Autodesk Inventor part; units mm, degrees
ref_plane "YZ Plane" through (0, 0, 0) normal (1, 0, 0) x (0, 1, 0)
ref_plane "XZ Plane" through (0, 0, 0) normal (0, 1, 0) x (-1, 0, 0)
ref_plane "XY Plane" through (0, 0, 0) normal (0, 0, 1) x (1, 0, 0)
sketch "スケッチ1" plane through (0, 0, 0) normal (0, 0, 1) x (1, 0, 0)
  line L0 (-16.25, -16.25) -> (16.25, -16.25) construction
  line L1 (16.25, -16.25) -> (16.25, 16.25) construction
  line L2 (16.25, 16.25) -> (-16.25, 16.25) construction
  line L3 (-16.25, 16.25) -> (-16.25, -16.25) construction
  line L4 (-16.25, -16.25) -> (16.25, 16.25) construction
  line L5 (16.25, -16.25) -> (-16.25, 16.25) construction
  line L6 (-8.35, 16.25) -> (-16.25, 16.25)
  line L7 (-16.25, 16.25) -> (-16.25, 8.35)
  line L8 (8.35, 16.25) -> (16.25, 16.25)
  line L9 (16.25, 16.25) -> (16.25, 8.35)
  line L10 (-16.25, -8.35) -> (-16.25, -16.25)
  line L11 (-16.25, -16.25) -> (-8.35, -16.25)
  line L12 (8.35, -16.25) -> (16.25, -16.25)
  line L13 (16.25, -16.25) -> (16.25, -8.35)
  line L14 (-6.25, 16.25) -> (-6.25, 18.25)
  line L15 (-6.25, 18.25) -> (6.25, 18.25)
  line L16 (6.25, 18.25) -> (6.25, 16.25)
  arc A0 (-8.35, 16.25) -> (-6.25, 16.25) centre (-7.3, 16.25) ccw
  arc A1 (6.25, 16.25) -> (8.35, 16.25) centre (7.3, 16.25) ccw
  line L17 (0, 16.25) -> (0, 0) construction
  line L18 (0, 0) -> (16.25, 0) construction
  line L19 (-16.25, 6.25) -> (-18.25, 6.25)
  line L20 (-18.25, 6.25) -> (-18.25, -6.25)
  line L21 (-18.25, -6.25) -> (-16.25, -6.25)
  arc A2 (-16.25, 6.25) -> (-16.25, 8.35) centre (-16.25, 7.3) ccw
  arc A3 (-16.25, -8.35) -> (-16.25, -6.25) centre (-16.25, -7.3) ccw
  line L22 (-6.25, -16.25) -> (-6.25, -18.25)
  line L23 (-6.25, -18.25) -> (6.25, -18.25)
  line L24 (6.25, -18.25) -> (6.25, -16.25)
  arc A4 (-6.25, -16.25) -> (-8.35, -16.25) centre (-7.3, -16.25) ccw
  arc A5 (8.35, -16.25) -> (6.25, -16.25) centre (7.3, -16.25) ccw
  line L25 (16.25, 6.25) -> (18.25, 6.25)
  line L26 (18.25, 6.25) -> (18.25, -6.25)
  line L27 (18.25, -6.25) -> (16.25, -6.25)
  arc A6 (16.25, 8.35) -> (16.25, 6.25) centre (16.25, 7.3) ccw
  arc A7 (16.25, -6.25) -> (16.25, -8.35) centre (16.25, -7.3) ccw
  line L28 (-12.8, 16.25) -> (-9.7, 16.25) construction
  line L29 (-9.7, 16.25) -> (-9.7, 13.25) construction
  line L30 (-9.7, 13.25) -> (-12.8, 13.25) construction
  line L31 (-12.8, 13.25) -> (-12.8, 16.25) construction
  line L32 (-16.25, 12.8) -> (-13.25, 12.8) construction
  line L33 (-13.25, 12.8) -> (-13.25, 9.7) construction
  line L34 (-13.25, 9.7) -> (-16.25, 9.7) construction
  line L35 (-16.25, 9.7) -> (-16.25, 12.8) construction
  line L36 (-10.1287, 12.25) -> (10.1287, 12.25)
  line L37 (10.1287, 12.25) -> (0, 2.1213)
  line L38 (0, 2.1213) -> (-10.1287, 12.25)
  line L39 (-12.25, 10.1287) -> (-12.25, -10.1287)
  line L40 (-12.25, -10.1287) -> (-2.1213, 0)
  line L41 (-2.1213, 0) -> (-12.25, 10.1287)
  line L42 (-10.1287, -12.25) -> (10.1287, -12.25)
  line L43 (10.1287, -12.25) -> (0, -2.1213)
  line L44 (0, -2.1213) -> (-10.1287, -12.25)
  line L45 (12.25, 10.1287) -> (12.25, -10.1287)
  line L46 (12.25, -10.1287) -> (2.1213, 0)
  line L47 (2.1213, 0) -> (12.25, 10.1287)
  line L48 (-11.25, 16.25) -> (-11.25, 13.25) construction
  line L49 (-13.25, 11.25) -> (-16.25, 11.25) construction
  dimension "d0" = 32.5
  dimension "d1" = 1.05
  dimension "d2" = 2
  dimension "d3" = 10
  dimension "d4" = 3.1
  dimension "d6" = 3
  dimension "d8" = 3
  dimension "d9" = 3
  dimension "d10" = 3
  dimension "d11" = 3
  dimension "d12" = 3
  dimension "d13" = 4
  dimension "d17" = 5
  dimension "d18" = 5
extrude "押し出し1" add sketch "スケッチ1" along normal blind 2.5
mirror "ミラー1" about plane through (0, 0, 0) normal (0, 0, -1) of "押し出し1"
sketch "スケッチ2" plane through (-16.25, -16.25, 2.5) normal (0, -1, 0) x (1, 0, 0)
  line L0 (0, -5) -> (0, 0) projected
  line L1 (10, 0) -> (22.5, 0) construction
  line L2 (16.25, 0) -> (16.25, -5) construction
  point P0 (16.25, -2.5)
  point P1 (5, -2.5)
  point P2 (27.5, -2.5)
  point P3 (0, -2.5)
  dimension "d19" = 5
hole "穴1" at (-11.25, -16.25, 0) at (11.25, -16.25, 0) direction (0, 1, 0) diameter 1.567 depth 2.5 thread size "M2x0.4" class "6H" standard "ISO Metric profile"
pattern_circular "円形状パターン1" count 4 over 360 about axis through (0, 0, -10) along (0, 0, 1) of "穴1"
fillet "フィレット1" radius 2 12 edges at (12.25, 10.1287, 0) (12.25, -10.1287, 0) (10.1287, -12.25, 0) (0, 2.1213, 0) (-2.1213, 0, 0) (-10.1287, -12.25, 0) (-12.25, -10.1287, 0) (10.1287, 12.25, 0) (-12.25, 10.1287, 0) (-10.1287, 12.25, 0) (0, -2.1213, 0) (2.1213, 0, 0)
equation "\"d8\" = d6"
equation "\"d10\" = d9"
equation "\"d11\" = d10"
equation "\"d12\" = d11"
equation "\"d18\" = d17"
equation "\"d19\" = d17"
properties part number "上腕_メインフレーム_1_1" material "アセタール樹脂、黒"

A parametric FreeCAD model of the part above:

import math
import FreeCAD as App
import Part
import Sketcher

V = App.Vector


def edges_at(feature, points):
    """Names of the edges that pass closest to the given points."""
    edges = feature.Shape.Edges
    near = lambda p: min(range(len(edges)), key=lambda i: edges[i].distToShape(Part.Vertex(*p))[0])
    return sorted({f"Edge{near(p) + 1}" for p in points})

doc = App.newDocument("Part")
body = doc.addObject("PartDesign::Body", "Body")

# Sketch on XY plane
sketch1 = body.newObject("Sketcher::SketchObject", "Sketch")
sketch1.AttachmentSupport = (doc.getObject("XY_Plane"), [""])
sketch1.MapMode = "FlatFace"
sketch1.addGeometry([
    Part.ArcOfCircle(Part.Circle(V(-7.3, 16.2, 0), V(0, 0, 1), 1), math.radians(180), math.radians(360)),  # 0
    Part.LineSegment(V(-8.3, 16.2, 0), V(-16.2, 16.2, 0)),  # 1
    Part.LineSegment(V(-16.2, 16.2, 0), V(-16.2, 8.3, 0)),  # 2
    Part.ArcOfCircle(Part.Circle(V(-16.2, 7.3, 0), V(0, 0, 1), 1), math.radians(-90), math.radians(90)),  # 3
    Part.LineSegment(V(-16.2, 6.2, 0), V(-18.2, 6.2, 0)),  # 4
    Part.LineSegment(V(-18.2, 6.2, 0), V(-18.2, -6.2, 0)),  # 5
    Part.LineSegment(V(-18.2, -6.2, 0), V(-16.2, -6.2, 0)),  # 6
    Part.ArcOfCircle(Part.Circle(V(-16.2, -7.3, 0), V(0, 0, 1), 1), math.radians(-90), math.radians(90)),  # 7
    Part.LineSegment(V(-16.2, -8.3, 0), V(-16.2, -16.2, 0)),  # 8
    Part.LineSegment(V(-16.2, -16.2, 0), V(-8.3, -16.2, 0)),  # 9
    Part.ArcOfCircle(Part.Circle(V(-7.3, -16.2, 0), V(0, 0, 1), 1), math.radians(0), math.radians(180)),  # 10
    Part.LineSegment(V(-6.2, -16.2, 0), V(-6.2, -18.2, 0)),  # 11
    Part.LineSegment(V(-6.2, -18.2, 0), V(6.2, -18.2, 0)),  # 12
    Part.LineSegment(V(6.2, -18.2, 0), V(6.2, -16.2, 0)),  # 13
    Part.ArcOfCircle(Part.Circle(V(7.3, -16.2, 0), V(0, 0, 1), 1), math.radians(0), math.radians(180)),  # 14
    Part.LineSegment(V(8.3, -16.2, 0), V(16.2, -16.2, 0)),  # 15
    Part.LineSegment(V(16.2, -16.2, 0), V(16.2, -8.3, 0)),  # 16
    Part.ArcOfCircle(Part.Circle(V(16.2, -7.3, 0), V(0, 0, 1), 1), math.radians(90), math.radians(270)),  # 17
    Part.LineSegment(V(16.2, -6.2, 0), V(18.2, -6.2, 0)),  # 18
    Part.LineSegment(V(18.2, -6.2, 0), V(18.2, 6.2, 0)),  # 19
    Part.LineSegment(V(18.2, 6.2, 0), V(16.2, 6.2, 0)),  # 20
    Part.ArcOfCircle(Part.Circle(V(16.2, 7.3, 0), V(0, 0, 1), 1), math.radians(90), math.radians(270)),  # 21
    Part.LineSegment(V(16.2, 8.3, 0), V(16.2, 16.2, 0)),  # 22
    Part.LineSegment(V(16.2, 16.2, 0), V(8.3, 16.2, 0)),  # 23
    Part.ArcOfCircle(Part.Circle(V(7.3, 16.2, 0), V(0, 0, 1), 1), math.radians(180), math.radians(360)),  # 24
    Part.LineSegment(V(6.2, 16.2, 0), V(6.2, 18.2, 0)),  # 25
    Part.LineSegment(V(6.2, 18.2, 0), V(-6.2, 18.2, 0)),  # 26
    Part.LineSegment(V(-6.2, 18.2, 0), V(-6.2, 16.2, 0)),  # 27
    Part.LineSegment(V(10.1, -12.2, 0), V(-10.1, -12.2, 0)),  # 28
    Part.LineSegment(V(-10.1, -12.2, 0), V(0, -2.1, 0)),  # 29
    Part.LineSegment(V(0, -2.1, 0), V(10.1, -12.2, 0)),  # 30
    Part.LineSegment(V(-12.2, -10.1, 0), V(-12.2, 10.1, 0)),  # 31
    Part.LineSegment(V(-12.2, 10.1, 0), V(-2.1, 0, 0)),  # 32
    Part.LineSegment(V(-2.1, 0, 0), V(-12.2, -10.1, 0)),  # 33
    Part.LineSegment(V(2.1, 0, 0), V(12.2, 10.1, 0)),  # 34
    Part.LineSegment(V(12.2, 10.1, 0), V(12.2, -10.1, 0)),  # 35
    Part.LineSegment(V(12.2, -10.1, 0), V(2.1, 0, 0)),  # 36
    Part.LineSegment(V(0, 2.1, 0), V(-10.1, 12.2, 0)),  # 37
    Part.LineSegment(V(-10.1, 12.2, 0), V(10.1, 12.2, 0)),  # 38
    Part.LineSegment(V(10.1, 12.2, 0), V(0, 2.1, 0)),  # 39
], False)
sketch1.addConstraint([
    Sketcher.Constraint("Coincident", 0, 1, 1, 1),
    Sketcher.Constraint("Coincident", 1, 2, 2, 1),
    Sketcher.Constraint("Coincident", 2, 2, 3, 2),
    Sketcher.Constraint("Tangent", 3, 1, 4, 1),
    Sketcher.Constraint("Coincident", 4, 2, 5, 1),
    Sketcher.Constraint("Coincident", 5, 2, 6, 1),
    Sketcher.Constraint("Tangent", 6, 2, 7, 2),
    Sketcher.Constraint("Coincident", 7, 1, 8, 1),
    Sketcher.Constraint("Coincident", 8, 2, 9, 1),
    Sketcher.Constraint("Coincident", 9, 2, 10, 2),
    Sketcher.Constraint("Tangent", 10, 1, 11, 1),
    Sketcher.Constraint("Coincident", 11, 2, 12, 1),
    Sketcher.Constraint("Coincident", 12, 2, 13, 1),
    Sketcher.Constraint("Tangent", 13, 2, 14, 2),
    Sketcher.Constraint("Coincident", 14, 1, 15, 1),
    Sketcher.Constraint("Coincident", 15, 2, 16, 1),
    Sketcher.Constraint("Coincident", 16, 2, 17, 2),
    Sketcher.Constraint("Tangent", 17, 1, 18, 1),
    Sketcher.Constraint("Coincident", 18, 2, 19, 1),
    Sketcher.Constraint("Coincident", 19, 2, 20, 1),
    Sketcher.Constraint("Tangent", 20, 2, 21, 2),
    Sketcher.Constraint("Coincident", 21, 1, 22, 1),
    Sketcher.Constraint("Coincident", 22, 2, 23, 1),
    Sketcher.Constraint("Coincident", 23, 2, 24, 2),
    Sketcher.Constraint("Tangent", 24, 1, 25, 1),
    Sketcher.Constraint("Coincident", 25, 2, 26, 1),
    Sketcher.Constraint("Coincident", 26, 2, 27, 1),
    Sketcher.Constraint("Tangent", 27, 2, 0, 2),
    Sketcher.Constraint("Coincident", 28, 2, 29, 1),
    Sketcher.Constraint("Coincident", 29, 2, 30, 1),
    Sketcher.Constraint("Coincident", 30, 2, 28, 1),
    Sketcher.Constraint("Coincident", 31, 2, 32, 1),
    Sketcher.Constraint("Coincident", 32, 2, 33, 1),
    Sketcher.Constraint("Coincident", 33, 2, 31, 1),
    Sketcher.Constraint("Coincident", 34, 2, 35, 1),
    Sketcher.Constraint("Coincident", 35, 2, 36, 1),
    Sketcher.Constraint("Coincident", 36, 2, 34, 1),
    Sketcher.Constraint("Coincident", 37, 2, 38, 1),
    Sketcher.Constraint("Coincident", 38, 2, 39, 1),
    Sketcher.Constraint("Coincident", 39, 2, 37, 1),
    Sketcher.Constraint("Horizontal", 1),
    Sketcher.Constraint("Vertical", 2),
    Sketcher.Constraint("Horizontal", 4),
    Sketcher.Constraint("Vertical", 5),
    Sketcher.Constraint("Horizontal", 6),
    Sketcher.Constraint("Vertical", 8),
    Sketcher.Constraint("Horizontal", 9),
    Sketcher.Constraint("Vertical", 11),
    Sketcher.Constraint("Horizontal", 12),
    Sketcher.Constraint("Vertical", 13),
    Sketcher.Constraint("Horizontal", 15),
    Sketcher.Constraint("Vertical", 16),
    Sketcher.Constraint("Horizontal", 18),
    Sketcher.Constraint("Vertical", 19),
    Sketcher.Constraint("Horizontal", 20),
    Sketcher.Constraint("Vertical", 22),
    Sketcher.Constraint("Horizontal", 23),
    Sketcher.Constraint("Vertical", 25),
    Sketcher.Constraint("Horizontal", 26),
    Sketcher.Constraint("Vertical", 27),
    Sketcher.Constraint("Horizontal", 28),
    Sketcher.Constraint("Vertical", 31),
    Sketcher.Constraint("Vertical", 35),
    Sketcher.Constraint("Horizontal", 38),
    Sketcher.Constraint("Equal", 0, 3),
    Sketcher.Constraint("Equal", 3, 7),
    Sketcher.Constraint("Equal", 7, 10),
    Sketcher.Constraint("Equal", 10, 14),
    Sketcher.Constraint("Equal", 14, 17),
    Sketcher.Constraint("Equal", 17, 21),
    Sketcher.Constraint("Equal", 21, 24),
    Sketcher.Constraint("Symmetric", 0, 3, 14, 3, -1, 1),
    Sketcher.Constraint("Symmetric", 3, 3, 17, 3, -1, 1),
    Sketcher.Constraint("Symmetric", 7, 3, 21, 3, -1, 1),
    Sketcher.Constraint("Symmetric", 10, 3, 24, 3, -1, 1),
    Sketcher.Constraint("Symmetric", 1, 2, 15, 2, -1, 1),
    Sketcher.Constraint("Symmetric", 8, 2, 22, 2, -1, 1),
    Sketcher.Constraint("Symmetric", 33, 2, 34, 2, -1, 1),
    Sketcher.Constraint("Symmetric", 32, 2, 36, 2, -1, 1),
    Sketcher.Constraint("Symmetric", 30, 2, 37, 2, -1, 1),
    Sketcher.Constraint("Symmetric", 29, 2, 39, 2, -1, 1),
    Sketcher.Constraint("Symmetric", 10, 3, 14, 3, -2),
    Sketcher.Constraint("Symmetric", 7, 3, 17, 3, -2),
    Sketcher.Constraint("Symmetric", 8, 2, 15, 2, -2),
    Sketcher.Constraint("PointOnObject", 29, 2, -2),
    Sketcher.Constraint("PointOnObject", 32, 2, -1),
    Sketcher.Constraint("Perpendicular", 29, 30),
    Sketcher.Constraint("Parallel", 30, 32),
    Sketcher.Constraint("Perpendicular", 32, 33),
    Sketcher.Constraint("Perpendicular", 34, 36),
    Sketcher.Constraint("Perpendicular", 37, 39),
    Sketcher.Constraint("Horizontal", 24, 3, 0, 1),
    Sketcher.Constraint("Horizontal", 31, 2, 34, 2),
    Sketcher.Constraint("Vertical", 7, 3, 1, 2),
    Sketcher.Constraint("Equal", 6, 18),
    Sketcher.Constraint("Equal", 23, 2),
    Sketcher.Constraint("Equal", 26, 5),
    Sketcher.Constraint("Equal", 20, 11),
    Sketcher.Constraint("Equal", 13, 25),
    Sketcher.Constraint("Equal", 38, 31),
    Sketcher.Constraint("DistanceX", 4, 2, 4, 1, 2.0),
    Sketcher.Constraint("Radius", 0, 1.05),
    Sketcher.Constraint("DistanceY", 3, 1, 1, 2, 10.0),
    Sketcher.Constraint("DistanceY", 9, 2, 28, 2, 4.0),
    Sketcher.Constraint("DistanceX", 2, 2, 31, 2, 4.0),
    Sketcher.Constraint("DistanceY", 10, 3, 0, 3, 32.5),
    Sketcher.Constraint("DistanceX", 28, 2, 28, 1, 20.2574),
])
pad1 = body.newObject("PartDesign::Pad", "Pad")
pad1.Profile = sketch1
pad1.Length = 2.5
doc.recompute()

mirrored = body.newObject("PartDesign::Mirrored", "Mirrored")
mirrored.Originals = [pad1]
mirrored.MirrorPlane = (doc.getObject("XY_Plane"), [""])
body.Tip = mirrored

# Sketch on XZ plane
sketch2 = body.newObject("Sketcher::SketchObject", "Sketch001")
sketch2.AttachmentSupport = (doc.getObject("XZ_Plane"), [""])
sketch2.MapMode = "FlatFace"
sketch2.AttachmentOffset = App.Placement(V(0, 0, 16.25), App.Rotation())
sketch2.addGeometry([
    Part.Circle(V(-11.2, 0, 0), V(0, 0, 1), 0.8),
    Part.Circle(V(11.2, 0, 0), V(0, 0, 1), 0.8),
], False)
sketch2.addConstraint([
    Sketcher.Constraint("Equal", 0, 1),
    Sketcher.Constraint("Symmetric", 0, 3, 1, 3, -1, 1),
    Sketcher.Constraint("PointOnObject", 0, 3, -1),
    Sketcher.Constraint("Diameter", 0, 1.567),
    Sketcher.Constraint("DistanceX", 0, 3, 1, 3, 22.5),
])
doc.recompute()
hole = body.newObject("PartDesign::Hole", "Hole")
hole.Profile = sketch2
hole.ThreadType = "None"
hole.Diameter = 1.567
hole.DepthType = "Dimension"
hole.Depth = 2.5
hole.DrillPoint = "Flat"
doc.recompute()

polarpattern = body.newObject("PartDesign::PolarPattern", "PolarPattern")
polarpattern.Originals = [hole]
polarpattern.Axis = (doc.getObject("Z_Axis"), [""])
polarpattern.Angle = 360
polarpattern.Occurrences = 4
body.Tip = polarpattern
doc.recompute()

fillet = body.newObject("PartDesign::Fillet", "Fillet")
fillet.Base = (polarpattern, edges_at(polarpattern, [
    (12.25, 10.129, 0),
    (12.25, -10.129, 0),
    (10.129, -12.25, 0),
    (0, 2.121, 0),
    (-2.121, 0, 0),
    (-10.129, -12.25, 0),
    (-12.25, -10.129, 0),
    (10.129, 12.25, 0),
    (-12.25, 10.129, 0),
    (-10.129, 12.25, 0),
    (0, -2.121, 0),
    (2.121, 0, 0),
]))
fillet.Radius = 2

doc.recompute()
